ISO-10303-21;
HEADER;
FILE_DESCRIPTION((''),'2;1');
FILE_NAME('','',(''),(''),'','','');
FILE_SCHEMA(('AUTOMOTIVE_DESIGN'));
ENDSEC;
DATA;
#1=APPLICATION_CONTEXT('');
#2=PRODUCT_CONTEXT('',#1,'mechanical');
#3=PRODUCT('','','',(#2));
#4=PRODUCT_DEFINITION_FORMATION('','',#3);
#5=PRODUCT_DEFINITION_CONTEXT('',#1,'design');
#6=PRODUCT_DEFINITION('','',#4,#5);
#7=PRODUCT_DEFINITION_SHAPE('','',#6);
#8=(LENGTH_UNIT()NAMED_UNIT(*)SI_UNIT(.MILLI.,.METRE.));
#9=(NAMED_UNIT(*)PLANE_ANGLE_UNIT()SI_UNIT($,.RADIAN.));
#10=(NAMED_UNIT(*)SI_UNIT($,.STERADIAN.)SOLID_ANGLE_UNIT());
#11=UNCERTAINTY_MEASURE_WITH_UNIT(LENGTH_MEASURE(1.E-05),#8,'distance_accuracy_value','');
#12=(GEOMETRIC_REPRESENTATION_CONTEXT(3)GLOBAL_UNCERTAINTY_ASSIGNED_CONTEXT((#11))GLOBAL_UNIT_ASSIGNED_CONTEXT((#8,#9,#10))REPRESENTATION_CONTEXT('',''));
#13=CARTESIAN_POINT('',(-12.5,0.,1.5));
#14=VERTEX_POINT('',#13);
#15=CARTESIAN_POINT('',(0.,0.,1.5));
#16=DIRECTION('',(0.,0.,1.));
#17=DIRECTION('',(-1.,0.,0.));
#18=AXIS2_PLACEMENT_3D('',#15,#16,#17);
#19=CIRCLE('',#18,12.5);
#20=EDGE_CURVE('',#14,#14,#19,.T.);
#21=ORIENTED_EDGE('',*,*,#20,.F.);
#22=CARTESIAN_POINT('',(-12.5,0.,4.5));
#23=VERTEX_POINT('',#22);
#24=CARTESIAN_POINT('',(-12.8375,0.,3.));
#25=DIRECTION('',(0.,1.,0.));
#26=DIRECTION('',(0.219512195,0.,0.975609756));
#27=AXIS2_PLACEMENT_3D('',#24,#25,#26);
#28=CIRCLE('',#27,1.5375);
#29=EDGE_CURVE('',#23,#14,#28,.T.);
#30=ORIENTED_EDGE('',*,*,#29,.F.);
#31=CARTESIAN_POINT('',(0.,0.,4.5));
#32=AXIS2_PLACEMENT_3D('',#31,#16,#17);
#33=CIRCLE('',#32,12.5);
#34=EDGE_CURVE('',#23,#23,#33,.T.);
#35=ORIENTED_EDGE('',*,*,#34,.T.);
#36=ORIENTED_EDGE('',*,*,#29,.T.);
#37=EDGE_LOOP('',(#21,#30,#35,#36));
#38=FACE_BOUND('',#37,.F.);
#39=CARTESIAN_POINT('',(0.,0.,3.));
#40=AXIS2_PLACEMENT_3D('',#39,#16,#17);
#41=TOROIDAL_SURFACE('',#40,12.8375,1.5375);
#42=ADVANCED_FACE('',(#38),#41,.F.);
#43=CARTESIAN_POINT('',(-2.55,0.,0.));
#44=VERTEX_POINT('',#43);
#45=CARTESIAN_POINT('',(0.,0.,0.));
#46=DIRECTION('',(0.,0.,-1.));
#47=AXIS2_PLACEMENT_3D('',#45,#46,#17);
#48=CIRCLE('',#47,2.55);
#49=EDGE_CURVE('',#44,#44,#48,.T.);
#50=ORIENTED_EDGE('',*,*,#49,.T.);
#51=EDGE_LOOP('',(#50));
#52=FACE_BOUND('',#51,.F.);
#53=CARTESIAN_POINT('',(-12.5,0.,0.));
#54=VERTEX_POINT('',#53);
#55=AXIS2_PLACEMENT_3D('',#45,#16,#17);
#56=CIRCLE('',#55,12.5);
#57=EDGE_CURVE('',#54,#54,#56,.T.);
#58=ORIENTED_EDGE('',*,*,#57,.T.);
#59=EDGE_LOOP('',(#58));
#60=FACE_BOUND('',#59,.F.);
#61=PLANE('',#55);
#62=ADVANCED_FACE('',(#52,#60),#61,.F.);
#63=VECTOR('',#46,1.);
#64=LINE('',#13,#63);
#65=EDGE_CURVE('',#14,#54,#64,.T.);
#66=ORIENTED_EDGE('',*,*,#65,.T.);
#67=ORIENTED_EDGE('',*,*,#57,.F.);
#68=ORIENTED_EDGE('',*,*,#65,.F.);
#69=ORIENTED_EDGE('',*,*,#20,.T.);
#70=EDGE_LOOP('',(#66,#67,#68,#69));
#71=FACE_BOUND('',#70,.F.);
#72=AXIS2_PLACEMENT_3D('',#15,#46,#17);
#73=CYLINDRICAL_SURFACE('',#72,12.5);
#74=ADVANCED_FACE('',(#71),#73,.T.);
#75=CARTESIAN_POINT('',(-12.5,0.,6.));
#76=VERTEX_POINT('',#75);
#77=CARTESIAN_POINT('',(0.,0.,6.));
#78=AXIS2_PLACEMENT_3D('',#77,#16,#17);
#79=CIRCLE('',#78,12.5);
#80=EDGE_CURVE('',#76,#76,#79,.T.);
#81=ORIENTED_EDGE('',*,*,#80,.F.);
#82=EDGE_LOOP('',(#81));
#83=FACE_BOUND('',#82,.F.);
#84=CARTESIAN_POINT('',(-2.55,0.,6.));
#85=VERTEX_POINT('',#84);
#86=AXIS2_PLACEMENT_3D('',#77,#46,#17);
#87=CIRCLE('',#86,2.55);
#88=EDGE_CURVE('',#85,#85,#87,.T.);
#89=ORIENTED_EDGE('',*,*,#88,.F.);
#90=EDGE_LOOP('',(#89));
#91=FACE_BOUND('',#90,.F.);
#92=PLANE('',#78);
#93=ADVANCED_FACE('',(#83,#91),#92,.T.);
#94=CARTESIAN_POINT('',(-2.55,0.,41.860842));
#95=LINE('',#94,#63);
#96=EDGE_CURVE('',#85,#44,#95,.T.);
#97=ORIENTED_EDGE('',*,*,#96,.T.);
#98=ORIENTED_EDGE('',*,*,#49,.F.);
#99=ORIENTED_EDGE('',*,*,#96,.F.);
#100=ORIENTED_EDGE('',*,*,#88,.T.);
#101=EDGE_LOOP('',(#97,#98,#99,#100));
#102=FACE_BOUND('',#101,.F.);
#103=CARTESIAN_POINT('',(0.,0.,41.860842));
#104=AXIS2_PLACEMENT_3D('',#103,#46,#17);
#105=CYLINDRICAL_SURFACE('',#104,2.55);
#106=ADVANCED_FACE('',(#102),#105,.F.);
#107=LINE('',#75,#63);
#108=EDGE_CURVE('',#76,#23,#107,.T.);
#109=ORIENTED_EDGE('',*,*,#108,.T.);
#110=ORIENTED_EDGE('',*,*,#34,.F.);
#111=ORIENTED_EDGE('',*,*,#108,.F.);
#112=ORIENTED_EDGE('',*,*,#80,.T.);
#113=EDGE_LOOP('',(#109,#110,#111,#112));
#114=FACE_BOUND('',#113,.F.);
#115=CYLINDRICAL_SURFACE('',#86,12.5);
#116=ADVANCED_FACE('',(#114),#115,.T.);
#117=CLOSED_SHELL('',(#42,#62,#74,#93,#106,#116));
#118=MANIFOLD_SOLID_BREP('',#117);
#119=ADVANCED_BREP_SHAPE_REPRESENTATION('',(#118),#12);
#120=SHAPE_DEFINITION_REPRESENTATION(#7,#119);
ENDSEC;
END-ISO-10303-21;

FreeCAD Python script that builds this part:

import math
import FreeCAD as App
import Part
import Sketcher
from FreeCAD import Vector

doc = App.newDocument("Part")
params = doc.addObject("Spreadsheet::Sheet", "Params")
for row, (alias, value) in enumerate([
    ("sketch1_height", "6 mm"),
    ("sketch1_width", "12.5 mm"),
    ("sketch1_height2", "1.5 mm"),
    ("revolution_angle", "360 deg"),
    ("sketch2_diameter", "5.1 mm"),
    ("hole_diameter", "5.1 mm"),
], start=1):
    params.set(f"A{row}", alias)
    params.set(f"B{row}", "=" + value)
    params.setAlias(f"B{row}", alias)

body = doc.addObject("PartDesign::Body", "Body")

sketch1 = body.newObject("Sketcher::SketchObject", "Sketch")
sketch1.AttachmentSupport = (doc.getObject("XZ_Plane"), [""])
sketch1.MapMode = "FlatFace"
sketch1.addGeometry([
    Part.LineSegment(Vector(-12.5, 0, 0), Vector(0, 0, 0)),
    Part.LineSegment(Vector(0, 0, 0), Vector(0, 6, 0)),
    Part.LineSegment(Vector(0, 6, 0), Vector(-12.5, 6, 0)),
    Part.LineSegment(Vector(-12.5, 6, 0), Vector(-12.5, 4.5, 0)),
    Part.ArcOfCircle(Part.Circle(Vector(-12.8, 3, 0), Vector(0, 0, 1), 1.5), math.radians(-77), math.radians(77)),
    Part.LineSegment(Vector(-12.5, 1.5, 0), Vector(-12.5, 0, 0)),
], False)
sketch1.addConstraint([
    Sketcher.Constraint("Coincident", 0, 2, 1, 1),
    Sketcher.Constraint("Coincident", 1, 2, 2, 1),
    Sketcher.Constraint("Coincident", 2, 2, 3, 1),
    Sketcher.Constraint("Coincident", 3, 2, 4, 2),
    Sketcher.Constraint("Coincident", 4, 1, 5, 1),
    Sketcher.Constraint("Coincident", 5, 2, 0, 1),
    Sketcher.Constraint("Horizontal", 0),
    Sketcher.Constraint("Vertical", 1),
    Sketcher.Constraint("Horizontal", 2),
    Sketcher.Constraint("Vertical", 3),
    Sketcher.Constraint("Vertical", 5),
    Sketcher.Constraint("Coincident", 0, 2, -1, 1),
    Sketcher.Constraint("Vertical", 3, 2, 4, 1),
    Sketcher.Constraint("Equal", 3, 5),
    Sketcher.Constraint("DistanceY", 1, 1, 1, 2, 6.0),
    Sketcher.Constraint("DistanceX", 0, 1, 0, 2, 12.5),
    Sketcher.Constraint("DistanceY", 3, 2, 3, 1, 1.5),
    Sketcher.Constraint("Radius", 4, 1.5375),
])
sketch1.setExpression("Constraints[14]", "Params.sketch1_height")
sketch1.setExpression("Constraints[15]", "Params.sketch1_width")
sketch1.setExpression("Constraints[16]", "Params.sketch1_height2")
revolution = body.newObject("PartDesign::Revolution", "Revolution")
revolution.Profile = sketch1
revolution.ReferenceAxis = (sketch1, ["V_Axis"])
revolution.setExpression("Angle", "Params.revolution_angle")

sketch2 = body.newObject("Sketcher::SketchObject", "Sketch001")
sketch2.AttachmentSupport = (doc.getObject("XY_Plane"), [""])
sketch2.MapMode = "FlatFace"
sketch2.AttachmentOffset = App.Placement(Vector(0, 0, 6), App.Rotation())
sketch2.addGeometry(Part.Circle(Vector(0, 0, 0), Vector(0, 0, 1), 2.5), False)
sketch2.addConstraint([
    Sketcher.Constraint("Coincident", 0, 3, -1, 1),
    Sketcher.Constraint("Diameter", 0, 5.1),
])
sketch2.setExpression("Constraints[1]", "Params.sketch2_diameter")
doc.recompute()
hole = body.newObject("PartDesign::Hole", "Hole")
hole.Profile = sketch2
hole.ThreadType = "None"
hole.setExpression("Diameter", "Params.hole_diameter")
hole.DepthType = "ThroughAll"

doc.recompute()
